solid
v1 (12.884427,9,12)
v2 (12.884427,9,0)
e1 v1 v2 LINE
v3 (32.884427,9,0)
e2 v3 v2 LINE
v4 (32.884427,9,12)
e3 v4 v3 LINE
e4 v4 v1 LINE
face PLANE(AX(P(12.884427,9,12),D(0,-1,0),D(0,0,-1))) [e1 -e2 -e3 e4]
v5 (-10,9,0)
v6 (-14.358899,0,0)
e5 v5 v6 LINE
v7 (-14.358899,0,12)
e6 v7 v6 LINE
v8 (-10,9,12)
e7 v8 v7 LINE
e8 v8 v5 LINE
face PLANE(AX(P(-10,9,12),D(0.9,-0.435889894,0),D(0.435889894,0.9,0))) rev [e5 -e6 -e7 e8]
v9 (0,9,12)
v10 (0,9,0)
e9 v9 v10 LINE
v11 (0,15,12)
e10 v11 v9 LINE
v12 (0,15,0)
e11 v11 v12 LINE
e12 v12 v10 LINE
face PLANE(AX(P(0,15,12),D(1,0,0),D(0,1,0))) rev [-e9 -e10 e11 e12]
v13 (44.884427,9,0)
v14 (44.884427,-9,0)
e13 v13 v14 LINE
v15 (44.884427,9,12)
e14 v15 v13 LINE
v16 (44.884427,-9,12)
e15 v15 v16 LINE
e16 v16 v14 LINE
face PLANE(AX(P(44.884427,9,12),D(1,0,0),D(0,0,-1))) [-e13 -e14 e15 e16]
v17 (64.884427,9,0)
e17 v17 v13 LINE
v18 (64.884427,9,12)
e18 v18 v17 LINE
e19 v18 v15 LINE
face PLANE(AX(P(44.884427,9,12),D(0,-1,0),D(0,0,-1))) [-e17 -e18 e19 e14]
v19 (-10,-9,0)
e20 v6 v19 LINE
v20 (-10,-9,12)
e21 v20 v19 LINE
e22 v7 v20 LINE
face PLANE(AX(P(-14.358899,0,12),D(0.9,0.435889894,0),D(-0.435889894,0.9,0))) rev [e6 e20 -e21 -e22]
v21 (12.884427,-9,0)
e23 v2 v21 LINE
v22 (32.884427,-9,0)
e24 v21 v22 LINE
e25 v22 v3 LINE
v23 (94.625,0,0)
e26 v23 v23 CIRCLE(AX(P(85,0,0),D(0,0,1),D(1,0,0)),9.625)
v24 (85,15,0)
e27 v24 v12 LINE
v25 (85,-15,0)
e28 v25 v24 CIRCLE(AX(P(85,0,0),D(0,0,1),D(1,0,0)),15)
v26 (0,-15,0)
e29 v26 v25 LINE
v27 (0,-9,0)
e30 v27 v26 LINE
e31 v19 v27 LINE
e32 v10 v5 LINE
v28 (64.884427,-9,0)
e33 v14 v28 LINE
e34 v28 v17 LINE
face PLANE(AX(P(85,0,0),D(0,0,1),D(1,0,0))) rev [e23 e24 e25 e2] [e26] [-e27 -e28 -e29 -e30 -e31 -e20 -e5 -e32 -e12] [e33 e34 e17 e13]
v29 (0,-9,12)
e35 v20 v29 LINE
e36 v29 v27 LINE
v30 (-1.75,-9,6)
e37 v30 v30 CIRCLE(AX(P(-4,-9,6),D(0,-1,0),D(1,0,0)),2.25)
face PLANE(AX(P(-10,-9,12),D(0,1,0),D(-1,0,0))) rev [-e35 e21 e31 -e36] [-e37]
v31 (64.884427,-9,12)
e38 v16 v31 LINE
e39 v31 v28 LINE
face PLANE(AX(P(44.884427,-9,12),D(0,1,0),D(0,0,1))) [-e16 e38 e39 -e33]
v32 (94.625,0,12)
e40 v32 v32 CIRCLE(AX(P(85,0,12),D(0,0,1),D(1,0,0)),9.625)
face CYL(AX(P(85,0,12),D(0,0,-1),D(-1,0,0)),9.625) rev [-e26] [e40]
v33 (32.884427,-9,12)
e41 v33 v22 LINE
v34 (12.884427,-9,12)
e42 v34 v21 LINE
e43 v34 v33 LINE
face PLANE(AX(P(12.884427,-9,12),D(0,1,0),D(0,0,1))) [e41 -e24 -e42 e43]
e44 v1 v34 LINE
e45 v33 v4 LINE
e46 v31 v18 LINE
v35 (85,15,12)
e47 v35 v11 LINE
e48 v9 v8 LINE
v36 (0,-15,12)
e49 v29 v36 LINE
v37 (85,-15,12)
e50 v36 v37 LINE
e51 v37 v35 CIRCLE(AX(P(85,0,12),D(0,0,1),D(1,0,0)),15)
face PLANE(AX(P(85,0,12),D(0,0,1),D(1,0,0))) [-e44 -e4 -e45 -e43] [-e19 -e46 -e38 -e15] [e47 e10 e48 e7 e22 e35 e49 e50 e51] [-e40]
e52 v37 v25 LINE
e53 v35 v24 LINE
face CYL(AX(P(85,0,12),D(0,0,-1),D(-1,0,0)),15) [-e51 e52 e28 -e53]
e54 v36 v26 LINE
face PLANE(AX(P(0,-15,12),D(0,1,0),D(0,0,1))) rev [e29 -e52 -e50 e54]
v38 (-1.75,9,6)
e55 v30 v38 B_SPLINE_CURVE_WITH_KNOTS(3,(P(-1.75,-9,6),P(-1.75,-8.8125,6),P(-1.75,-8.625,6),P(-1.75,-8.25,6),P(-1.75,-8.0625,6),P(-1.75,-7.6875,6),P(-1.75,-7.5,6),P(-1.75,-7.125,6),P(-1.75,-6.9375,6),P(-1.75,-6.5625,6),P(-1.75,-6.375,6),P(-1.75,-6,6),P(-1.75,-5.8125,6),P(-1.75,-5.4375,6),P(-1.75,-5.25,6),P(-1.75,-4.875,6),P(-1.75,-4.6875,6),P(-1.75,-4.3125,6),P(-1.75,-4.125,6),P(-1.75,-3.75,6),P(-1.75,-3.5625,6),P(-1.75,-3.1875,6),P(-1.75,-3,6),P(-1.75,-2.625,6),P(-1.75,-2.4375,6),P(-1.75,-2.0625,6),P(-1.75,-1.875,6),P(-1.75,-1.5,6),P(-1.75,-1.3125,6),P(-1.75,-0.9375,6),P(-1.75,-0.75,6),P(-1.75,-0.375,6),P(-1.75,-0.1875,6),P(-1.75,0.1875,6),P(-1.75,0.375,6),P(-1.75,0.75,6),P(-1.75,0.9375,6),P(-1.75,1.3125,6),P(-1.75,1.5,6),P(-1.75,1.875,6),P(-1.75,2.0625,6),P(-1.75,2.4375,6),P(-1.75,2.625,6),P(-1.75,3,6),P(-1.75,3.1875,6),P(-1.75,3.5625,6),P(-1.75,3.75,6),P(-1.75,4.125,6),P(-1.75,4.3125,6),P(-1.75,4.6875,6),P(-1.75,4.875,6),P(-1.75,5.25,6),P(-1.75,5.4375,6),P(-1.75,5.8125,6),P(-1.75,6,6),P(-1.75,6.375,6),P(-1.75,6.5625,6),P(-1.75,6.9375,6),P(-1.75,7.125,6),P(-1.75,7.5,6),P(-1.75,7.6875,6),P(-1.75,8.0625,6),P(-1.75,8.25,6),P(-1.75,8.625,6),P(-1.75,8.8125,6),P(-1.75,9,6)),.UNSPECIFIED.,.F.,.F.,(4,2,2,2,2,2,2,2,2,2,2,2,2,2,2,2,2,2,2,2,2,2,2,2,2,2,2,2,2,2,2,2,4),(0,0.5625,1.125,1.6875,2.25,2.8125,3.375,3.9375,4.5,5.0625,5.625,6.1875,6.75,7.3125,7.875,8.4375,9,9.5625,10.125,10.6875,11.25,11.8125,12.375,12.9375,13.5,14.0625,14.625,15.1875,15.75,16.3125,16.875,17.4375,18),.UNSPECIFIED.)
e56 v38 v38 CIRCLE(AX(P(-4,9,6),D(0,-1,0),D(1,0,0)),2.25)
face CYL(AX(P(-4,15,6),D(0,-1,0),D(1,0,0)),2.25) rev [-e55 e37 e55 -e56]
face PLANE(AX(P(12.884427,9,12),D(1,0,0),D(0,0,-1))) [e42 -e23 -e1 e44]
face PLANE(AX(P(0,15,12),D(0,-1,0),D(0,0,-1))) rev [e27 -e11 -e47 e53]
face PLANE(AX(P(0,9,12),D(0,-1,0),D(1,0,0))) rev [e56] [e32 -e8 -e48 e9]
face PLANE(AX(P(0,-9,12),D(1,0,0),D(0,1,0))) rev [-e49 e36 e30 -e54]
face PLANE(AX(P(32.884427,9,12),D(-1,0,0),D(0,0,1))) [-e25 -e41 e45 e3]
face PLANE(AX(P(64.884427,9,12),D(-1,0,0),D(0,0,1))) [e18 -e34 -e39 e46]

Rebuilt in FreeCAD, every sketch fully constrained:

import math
import FreeCAD as App
import Part
import Sketcher


def add_polygon(sketch, points):
    """Adds a closed chain of lines whose ends are joined by coincident constraints."""
    first, n = sketch.GeometryCount, len(points)
    for a, b in zip(points, points[1:] + points[:1]):
        sketch.addGeometry(Part.LineSegment(App.Vector(*a, 0), App.Vector(*b, 0)), False)
    for i in range(n):
        sketch.addConstraint(Sketcher.Constraint("Coincident", first + i, 2, first + (i + 1) % n, 1))

doc = App.newDocument("Part")
body = doc.addObject("PartDesign::Body", "Body")

# Sketch on XY plane
sketch1 = doc.addObject("Sketcher::SketchObject", "Sketch")
body.addObject(sketch1)
sketch1.AttachmentSupport = (doc.XY_Plane, [""])
sketch1.MapMode = "FlatFace"
sketch1.addGeometry(Part.LineSegment(App.Vector(85, 15, 0), App.Vector(0, 15, 0)), False)  # 0
sketch1.addGeometry(Part.LineSegment(App.Vector(0, 15, 0), App.Vector(0, 9, 0)), False)  # 1
sketch1.addGeometry(Part.LineSegment(App.Vector(0, 9, 0), App.Vector(-10, 9, 0)), False)  # 2
sketch1.addGeometry(Part.LineSegment(App.Vector(-10, 9, 0), App.Vector(-14.358899, 0, 0)), False)  # 3
sketch1.addGeometry(Part.LineSegment(App.Vector(-14.358899, 0, 0), App.Vector(-10, -9, 0)), False)  # 4
sketch1.addGeometry(Part.LineSegment(App.Vector(-10, -9, 0), App.Vector(0, -9, 0)), False)  # 5
sketch1.addGeometry(Part.LineSegment(App.Vector(0, -9, 0), App.Vector(0, -15, 0)), False)  # 6
sketch1.addGeometry(Part.LineSegment(App.Vector(0, -15, 0), App.Vector(85, -15, 0)), False)  # 7
sketch1.addGeometry(Part.ArcOfCircle(Part.Circle(App.Vector(85, 0, 0), App.Vector(0, 0, 1), 15), math.radians(-90), math.radians(90)), False)  # 8
sketch1.addGeometry(Part.Circle(App.Vector(85, 0, 0), App.Vector(0, 0, 1), 9.625), False)  # 9
add_polygon(sketch1, [(44.884427, -9), (44.884427, 9), (64.884427, 9), (64.884427, -9)])  # lines 10-13
add_polygon(sketch1, [(12.884427, -9), (12.884427, 9), (32.884427, 9), (32.884427, -9)])  # lines 14-17
sketch1.addConstraint(Sketcher.Constraint("Coincident", 0, 2, 1, 1))
sketch1.addConstraint(Sketcher.Constraint("Coincident", 1, 2, 2, 1))
sketch1.addConstraint(Sketcher.Constraint("Coincident", 2, 2, 3, 1))
sketch1.addConstraint(Sketcher.Constraint("Coincident", 3, 2, 4, 1))
sketch1.addConstraint(Sketcher.Constraint("Coincident", 4, 2, 5, 1))
sketch1.addConstraint(Sketcher.Constraint("Coincident", 5, 2, 6, 1))
sketch1.addConstraint(Sketcher.Constraint("Coincident", 6, 2, 7, 1))
sketch1.addConstraint(Sketcher.Constraint("Tangent", 7, 2, 8, 1))
sketch1.addConstraint(Sketcher.Constraint("Tangent", 8, 2, 0, 1))
sketch1.addConstraint(Sketcher.Constraint("Horizontal", 0))
sketch1.addConstraint(Sketcher.Constraint("Vertical", 1))
sketch1.addConstraint(Sketcher.Constraint("Horizontal", 2))
sketch1.addConstraint(Sketcher.Constraint("Horizontal", 5))
sketch1.addConstraint(Sketcher.Constraint("Vertical", 6))
sketch1.addConstraint(Sketcher.Constraint("Horizontal", 7))
sketch1.addConstraint(Sketcher.Constraint("Vertical", 10))
sketch1.addConstraint(Sketcher.Constraint("Horizontal", 11))
sketch1.addConstraint(Sketcher.Constraint("Vertical", 12))
sketch1.addConstraint(Sketcher.Constraint("Horizontal", 13))
sketch1.addConstraint(Sketcher.Constraint("Vertical", 14))
sketch1.addConstraint(Sketcher.Constraint("Horizontal", 15))
sketch1.addConstraint(Sketcher.Constraint("Vertical", 16))
sketch1.addConstraint(Sketcher.Constraint("Horizontal", 17))
sketch1.addConstraint(Sketcher.Constraint("Coincident", 9, 3, 8, 3))
sketch1.addConstraint(Sketcher.Constraint("Symmetric", 1, 2, 5, 2, -1, 1))
sketch1.addConstraint(Sketcher.Constraint("Symmetric", 0, 2, 6, 2, -1))
sketch1.addConstraint(Sketcher.Constraint("PointOnObject", 3, 2, -1))
sketch1.addConstraint(Sketcher.Constraint("Horizontal", 2, 2, 10, 2))
sketch1.addConstraint(Sketcher.Constraint("Horizontal", 5, 2, 12, 2))
sketch1.addConstraint(Sketcher.Constraint("Horizontal", 11, 2, 14, 2))
sketch1.addConstraint(Sketcher.Constraint("Horizontal", 13, 2, 16, 2))
sketch1.addConstraint(Sketcher.Constraint("Vertical", 2, 2, 4, 2))
sketch1.addConstraint(Sketcher.Constraint("Equal", 13, 15))
sketch1.addConstraint(Sketcher.Constraint("Radius", 8, 15.0))
sketch1.addConstraint(Sketcher.Constraint("Diameter", 9, 19.25))
sketch1.addConstraint(Sketcher.Constraint("DistanceX", 0, 2, 0, 1, 85.0))
sketch1.addConstraint(Sketcher.Constraint("DistanceX", 2, 2, 2, 1, 10.0))
sketch1.addConstraint(Sketcher.Constraint("DistanceX", 11, 1, 11, 2, 20.0))
sketch1.addConstraint(Sketcher.Constraint("DistanceY", 1, 2, 1, 1, 6.0))
sketch1.addConstraint(Sketcher.Constraint("Distance", 3, 10.0))
sketch1.addConstraint(Sketcher.Constraint("DistanceX", 15, 2, 10, 2, 12.0))
sketch1.addConstraint(Sketcher.Constraint("DistanceX", -1, 1, 10, 2, 44.884427))
pad1 = doc.addObject("PartDesign::Pad", "Pad")
body.addObject(pad1)
pad1.Profile = sketch1
pad1.Length = 12

# Sketch on XZ plane
sketch2 = doc.addObject("Sketcher::SketchObject", "Sketch001")
body.addObject(sketch2)
sketch2.AttachmentSupport = (doc.XZ_Plane, [""])
sketch2.MapMode = "FlatFace"
sketch2.AttachmentOffset = App.Placement(App.Vector(0, 0, 9), App.Rotation())
sketch2.addGeometry(Part.Circle(App.Vector(-4, 6, 0), App.Vector(0, 0, 1), 2.25), False)
sketch2.addConstraint(Sketcher.Constraint("Diameter", 0, 4.5))
sketch2.addConstraint(Sketcher.Constraint("DistanceX", 0, 3, -1, 1, 4.0))
sketch2.addConstraint(Sketcher.Constraint("DistanceY", -1, 1, 0, 3, 6.0))
pocket1 = doc.addObject("PartDesign::Pocket", "Pocket")
body.addObject(pocket1)
pocket1.Profile = sketch2
pocket1.Type = "ThroughAll"

doc.recompute()
